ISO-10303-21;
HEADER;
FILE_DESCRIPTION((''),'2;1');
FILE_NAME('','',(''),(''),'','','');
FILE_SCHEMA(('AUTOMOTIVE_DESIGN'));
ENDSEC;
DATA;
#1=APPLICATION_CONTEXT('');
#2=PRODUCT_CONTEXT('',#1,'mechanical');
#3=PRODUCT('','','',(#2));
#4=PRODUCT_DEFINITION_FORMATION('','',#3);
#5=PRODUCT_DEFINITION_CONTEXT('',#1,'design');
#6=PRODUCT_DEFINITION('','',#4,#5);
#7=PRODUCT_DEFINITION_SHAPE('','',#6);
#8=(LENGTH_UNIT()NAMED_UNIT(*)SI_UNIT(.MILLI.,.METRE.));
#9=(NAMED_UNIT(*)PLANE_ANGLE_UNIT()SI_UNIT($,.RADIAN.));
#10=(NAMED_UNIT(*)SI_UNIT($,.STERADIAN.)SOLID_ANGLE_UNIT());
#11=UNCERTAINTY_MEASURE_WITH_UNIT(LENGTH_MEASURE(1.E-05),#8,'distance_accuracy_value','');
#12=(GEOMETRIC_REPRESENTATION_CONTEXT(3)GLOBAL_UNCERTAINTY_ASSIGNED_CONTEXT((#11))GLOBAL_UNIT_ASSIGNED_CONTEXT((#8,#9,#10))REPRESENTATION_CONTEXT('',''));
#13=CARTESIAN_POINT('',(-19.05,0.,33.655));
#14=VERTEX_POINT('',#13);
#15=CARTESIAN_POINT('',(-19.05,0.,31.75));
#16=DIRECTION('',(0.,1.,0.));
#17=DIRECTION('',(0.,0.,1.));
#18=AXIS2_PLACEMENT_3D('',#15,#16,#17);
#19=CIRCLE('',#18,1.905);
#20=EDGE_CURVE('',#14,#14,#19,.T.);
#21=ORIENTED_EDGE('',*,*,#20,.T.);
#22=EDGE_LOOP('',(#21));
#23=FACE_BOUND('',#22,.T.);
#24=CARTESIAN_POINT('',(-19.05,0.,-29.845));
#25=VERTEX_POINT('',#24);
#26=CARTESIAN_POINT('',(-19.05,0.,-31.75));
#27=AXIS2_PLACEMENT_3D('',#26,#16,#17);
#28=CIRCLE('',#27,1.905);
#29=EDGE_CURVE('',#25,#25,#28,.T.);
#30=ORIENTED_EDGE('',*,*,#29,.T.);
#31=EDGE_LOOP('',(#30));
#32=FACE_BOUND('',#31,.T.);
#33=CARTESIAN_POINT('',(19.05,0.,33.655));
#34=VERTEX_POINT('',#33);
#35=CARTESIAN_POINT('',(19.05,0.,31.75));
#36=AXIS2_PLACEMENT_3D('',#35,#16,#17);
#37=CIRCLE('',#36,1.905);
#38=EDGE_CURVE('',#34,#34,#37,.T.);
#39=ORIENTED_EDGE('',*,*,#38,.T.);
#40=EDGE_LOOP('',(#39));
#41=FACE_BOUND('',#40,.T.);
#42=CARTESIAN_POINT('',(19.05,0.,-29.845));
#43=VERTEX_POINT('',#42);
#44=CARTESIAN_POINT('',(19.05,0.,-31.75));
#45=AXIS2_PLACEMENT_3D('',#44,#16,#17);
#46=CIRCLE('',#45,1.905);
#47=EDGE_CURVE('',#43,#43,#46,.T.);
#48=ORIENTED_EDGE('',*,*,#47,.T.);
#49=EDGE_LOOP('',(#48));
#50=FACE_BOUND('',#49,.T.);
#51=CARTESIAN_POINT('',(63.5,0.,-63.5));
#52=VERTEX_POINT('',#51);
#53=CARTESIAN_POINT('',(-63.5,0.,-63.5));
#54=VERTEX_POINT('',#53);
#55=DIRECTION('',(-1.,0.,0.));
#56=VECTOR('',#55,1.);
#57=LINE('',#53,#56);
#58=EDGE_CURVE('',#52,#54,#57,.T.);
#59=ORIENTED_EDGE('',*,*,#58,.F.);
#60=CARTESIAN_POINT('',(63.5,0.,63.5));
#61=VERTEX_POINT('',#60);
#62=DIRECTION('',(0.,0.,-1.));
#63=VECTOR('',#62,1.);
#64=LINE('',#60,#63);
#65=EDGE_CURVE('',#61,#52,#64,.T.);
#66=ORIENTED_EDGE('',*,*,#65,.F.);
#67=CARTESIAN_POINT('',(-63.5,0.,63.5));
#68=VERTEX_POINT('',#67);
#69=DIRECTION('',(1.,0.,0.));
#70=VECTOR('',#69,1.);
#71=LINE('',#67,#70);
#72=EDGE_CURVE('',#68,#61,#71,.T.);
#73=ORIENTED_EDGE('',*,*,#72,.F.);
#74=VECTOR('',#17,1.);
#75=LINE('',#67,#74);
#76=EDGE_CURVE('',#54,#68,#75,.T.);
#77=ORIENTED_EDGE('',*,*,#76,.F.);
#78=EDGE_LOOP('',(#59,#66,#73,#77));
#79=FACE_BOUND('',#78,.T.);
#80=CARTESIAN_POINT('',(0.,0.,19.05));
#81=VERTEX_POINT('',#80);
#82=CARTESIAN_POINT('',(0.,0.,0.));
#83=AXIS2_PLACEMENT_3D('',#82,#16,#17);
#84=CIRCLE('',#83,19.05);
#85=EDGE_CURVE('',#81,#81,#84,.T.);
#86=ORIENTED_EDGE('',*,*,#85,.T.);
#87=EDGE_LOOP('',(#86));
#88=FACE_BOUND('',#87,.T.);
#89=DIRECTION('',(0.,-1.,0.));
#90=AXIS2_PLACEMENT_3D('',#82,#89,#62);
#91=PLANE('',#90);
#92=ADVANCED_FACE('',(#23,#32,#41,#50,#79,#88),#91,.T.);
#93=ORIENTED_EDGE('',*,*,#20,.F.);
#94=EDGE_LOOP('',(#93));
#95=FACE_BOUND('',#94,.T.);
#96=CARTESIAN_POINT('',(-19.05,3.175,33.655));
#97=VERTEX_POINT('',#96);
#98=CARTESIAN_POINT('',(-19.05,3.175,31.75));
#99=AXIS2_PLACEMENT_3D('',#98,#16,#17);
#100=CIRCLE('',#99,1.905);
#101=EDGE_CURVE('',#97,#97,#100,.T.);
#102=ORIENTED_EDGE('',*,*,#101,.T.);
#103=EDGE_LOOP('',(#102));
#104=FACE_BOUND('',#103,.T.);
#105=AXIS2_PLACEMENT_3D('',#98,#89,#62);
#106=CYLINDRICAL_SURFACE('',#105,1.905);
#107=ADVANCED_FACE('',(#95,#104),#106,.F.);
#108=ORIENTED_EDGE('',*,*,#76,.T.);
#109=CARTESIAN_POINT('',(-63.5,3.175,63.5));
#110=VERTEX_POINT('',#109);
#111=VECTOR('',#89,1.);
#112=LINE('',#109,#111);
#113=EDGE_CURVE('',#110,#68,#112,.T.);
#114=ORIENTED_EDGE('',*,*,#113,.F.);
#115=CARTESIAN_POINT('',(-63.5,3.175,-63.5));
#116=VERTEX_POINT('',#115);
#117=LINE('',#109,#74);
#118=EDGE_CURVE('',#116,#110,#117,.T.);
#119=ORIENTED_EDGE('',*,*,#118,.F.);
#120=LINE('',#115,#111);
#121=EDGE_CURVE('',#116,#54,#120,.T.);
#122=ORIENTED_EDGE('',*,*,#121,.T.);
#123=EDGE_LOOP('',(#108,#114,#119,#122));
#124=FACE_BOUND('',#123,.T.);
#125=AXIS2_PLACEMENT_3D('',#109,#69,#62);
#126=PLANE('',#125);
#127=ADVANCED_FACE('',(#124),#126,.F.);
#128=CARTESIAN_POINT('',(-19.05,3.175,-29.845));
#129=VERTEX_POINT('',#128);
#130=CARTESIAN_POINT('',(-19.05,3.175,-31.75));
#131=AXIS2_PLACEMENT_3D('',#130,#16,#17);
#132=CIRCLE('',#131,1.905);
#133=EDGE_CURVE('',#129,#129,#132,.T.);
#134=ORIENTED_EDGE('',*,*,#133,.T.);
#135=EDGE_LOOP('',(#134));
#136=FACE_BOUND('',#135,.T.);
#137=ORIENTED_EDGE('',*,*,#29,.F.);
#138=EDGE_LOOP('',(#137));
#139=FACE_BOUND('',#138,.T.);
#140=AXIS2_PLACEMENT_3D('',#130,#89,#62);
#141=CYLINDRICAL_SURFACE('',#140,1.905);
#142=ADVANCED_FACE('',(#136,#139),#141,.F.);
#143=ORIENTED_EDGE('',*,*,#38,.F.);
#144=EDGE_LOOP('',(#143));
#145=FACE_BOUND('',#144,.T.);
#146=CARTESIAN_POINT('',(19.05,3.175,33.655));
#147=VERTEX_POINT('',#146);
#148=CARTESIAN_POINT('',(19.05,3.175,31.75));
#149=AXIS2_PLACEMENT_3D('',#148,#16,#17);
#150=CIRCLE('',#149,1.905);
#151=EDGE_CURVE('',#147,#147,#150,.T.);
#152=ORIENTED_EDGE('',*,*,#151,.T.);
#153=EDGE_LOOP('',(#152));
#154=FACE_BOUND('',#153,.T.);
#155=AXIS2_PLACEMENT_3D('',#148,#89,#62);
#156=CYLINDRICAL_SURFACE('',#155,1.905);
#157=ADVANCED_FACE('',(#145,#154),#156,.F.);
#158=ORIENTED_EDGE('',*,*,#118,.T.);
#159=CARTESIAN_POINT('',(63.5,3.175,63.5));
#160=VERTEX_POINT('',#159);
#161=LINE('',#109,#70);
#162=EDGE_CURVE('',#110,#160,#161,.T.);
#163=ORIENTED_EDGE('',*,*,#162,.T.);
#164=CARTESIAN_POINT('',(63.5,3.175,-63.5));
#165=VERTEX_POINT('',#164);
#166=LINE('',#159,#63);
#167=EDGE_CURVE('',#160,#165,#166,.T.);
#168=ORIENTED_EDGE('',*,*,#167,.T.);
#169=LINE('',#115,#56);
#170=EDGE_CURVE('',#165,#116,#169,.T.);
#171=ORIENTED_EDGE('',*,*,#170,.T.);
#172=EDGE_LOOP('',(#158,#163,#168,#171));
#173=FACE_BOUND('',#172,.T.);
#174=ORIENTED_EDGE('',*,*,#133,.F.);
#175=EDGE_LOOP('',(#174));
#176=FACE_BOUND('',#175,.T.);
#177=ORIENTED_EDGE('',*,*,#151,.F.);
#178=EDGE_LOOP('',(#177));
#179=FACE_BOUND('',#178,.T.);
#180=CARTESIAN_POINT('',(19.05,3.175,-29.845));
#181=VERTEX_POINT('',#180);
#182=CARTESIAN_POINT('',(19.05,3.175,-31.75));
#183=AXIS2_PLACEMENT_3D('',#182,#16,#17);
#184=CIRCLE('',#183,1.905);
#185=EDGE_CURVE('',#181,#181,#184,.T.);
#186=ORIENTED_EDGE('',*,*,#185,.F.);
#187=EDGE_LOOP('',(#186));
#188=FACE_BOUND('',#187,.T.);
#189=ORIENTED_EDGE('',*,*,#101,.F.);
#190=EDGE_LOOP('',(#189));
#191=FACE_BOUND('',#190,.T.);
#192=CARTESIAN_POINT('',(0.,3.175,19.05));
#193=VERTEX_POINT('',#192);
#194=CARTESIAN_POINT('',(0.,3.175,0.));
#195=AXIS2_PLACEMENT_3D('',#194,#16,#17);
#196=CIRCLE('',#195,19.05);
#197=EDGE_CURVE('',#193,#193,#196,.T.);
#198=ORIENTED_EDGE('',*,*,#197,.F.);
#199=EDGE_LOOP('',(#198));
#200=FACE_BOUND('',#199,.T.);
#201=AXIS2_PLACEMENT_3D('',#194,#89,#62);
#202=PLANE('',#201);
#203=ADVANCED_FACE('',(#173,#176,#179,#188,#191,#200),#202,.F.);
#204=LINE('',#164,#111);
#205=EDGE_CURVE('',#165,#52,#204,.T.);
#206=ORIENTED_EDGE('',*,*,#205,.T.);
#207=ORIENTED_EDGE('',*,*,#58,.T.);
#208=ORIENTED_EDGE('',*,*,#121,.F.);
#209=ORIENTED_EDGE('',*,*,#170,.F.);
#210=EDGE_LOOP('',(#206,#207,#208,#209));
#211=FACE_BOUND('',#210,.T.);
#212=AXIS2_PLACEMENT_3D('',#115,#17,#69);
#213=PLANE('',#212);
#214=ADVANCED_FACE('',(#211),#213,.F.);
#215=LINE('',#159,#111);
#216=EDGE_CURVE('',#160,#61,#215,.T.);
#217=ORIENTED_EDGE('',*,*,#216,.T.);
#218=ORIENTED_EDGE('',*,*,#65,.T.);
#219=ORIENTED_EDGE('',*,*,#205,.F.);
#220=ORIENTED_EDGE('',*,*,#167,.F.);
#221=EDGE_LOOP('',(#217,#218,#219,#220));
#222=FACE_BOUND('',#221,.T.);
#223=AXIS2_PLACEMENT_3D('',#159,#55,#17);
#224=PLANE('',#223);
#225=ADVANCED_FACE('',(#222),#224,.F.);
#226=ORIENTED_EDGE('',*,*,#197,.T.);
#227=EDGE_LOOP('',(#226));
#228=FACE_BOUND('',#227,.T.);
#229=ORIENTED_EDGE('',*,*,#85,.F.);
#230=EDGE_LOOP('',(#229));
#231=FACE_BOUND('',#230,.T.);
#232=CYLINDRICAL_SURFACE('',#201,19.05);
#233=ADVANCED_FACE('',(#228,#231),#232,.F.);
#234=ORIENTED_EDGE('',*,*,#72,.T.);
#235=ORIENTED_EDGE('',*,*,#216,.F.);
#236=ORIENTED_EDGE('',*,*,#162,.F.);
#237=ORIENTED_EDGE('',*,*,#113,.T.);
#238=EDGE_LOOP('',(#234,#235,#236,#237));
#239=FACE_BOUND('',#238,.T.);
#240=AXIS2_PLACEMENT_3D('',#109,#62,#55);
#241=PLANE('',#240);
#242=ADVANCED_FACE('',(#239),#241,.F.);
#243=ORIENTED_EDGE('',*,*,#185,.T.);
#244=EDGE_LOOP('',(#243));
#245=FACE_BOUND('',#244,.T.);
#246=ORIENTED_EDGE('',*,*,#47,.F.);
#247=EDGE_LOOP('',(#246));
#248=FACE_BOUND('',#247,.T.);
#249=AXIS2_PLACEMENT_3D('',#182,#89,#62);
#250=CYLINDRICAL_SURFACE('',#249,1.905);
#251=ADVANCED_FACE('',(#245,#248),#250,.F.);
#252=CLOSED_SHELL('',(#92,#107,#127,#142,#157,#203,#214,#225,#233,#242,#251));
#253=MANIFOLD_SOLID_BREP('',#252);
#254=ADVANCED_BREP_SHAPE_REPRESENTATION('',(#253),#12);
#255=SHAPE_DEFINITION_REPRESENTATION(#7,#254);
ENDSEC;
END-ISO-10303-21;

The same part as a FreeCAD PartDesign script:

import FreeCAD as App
import Part
import Sketcher
Q = App.Units.Quantity

doc = App.newDocument("Part")
body = doc.addObject("PartDesign::Body", "Body")

# Sketch on XZ plane
sketch1 = body.newObject("Sketcher::SketchObject", "Sketch")
sketch1.AttachmentSupport = (doc.getObject("XZ_Plane"), [""])
sketch1.MapMode = "FlatFace"
sketch1.addGeometry(Part.LineSegment(App.Vector(-64, -64, 0), App.Vector(-64, 64, 0)), False)
sketch1.addGeometry(Part.LineSegment(App.Vector(-64, 64, 0), App.Vector(64, 64, 0)), False)
sketch1.addGeometry(Part.LineSegment(App.Vector(64, 64, 0), App.Vector(64, -64, 0)), False)
sketch1.addGeometry(Part.LineSegment(App.Vector(64, -64, 0), App.Vector(-64, -64, 0)), False)
sketch1.addConstraint(Sketcher.Constraint("Coincident", 0, 2, 1, 1))
sketch1.addConstraint(Sketcher.Constraint("Coincident", 1, 2, 2, 1))
sketch1.addConstraint(Sketcher.Constraint("Coincident", 2, 2, 3, 1))
sketch1.addConstraint(Sketcher.Constraint("Coincident", 3, 2, 0, 1))
sketch1.addConstraint(Sketcher.Constraint("Vertical", 0))
sketch1.addConstraint(Sketcher.Constraint("Horizontal", 1))
sketch1.addConstraint(Sketcher.Constraint("Vertical", 2))
sketch1.addConstraint(Sketcher.Constraint("Horizontal", 3))
sketch1.addConstraint(Sketcher.Constraint("Symmetric", 0, 2, 2, 2, -1, 1))
sketch1.addConstraint(Sketcher.Constraint("Equal", 3, 0))
sketch1.addConstraint(Sketcher.Constraint("DistanceX", 1, 1, 1, 2, Q("5 in")))
pad1 = body.newObject("PartDesign::Pad", "Pad")
pad1.Profile = sketch1
pad1.Length = Q("0.125 in")
pad1.Reversed = True

# Sketch on XZ plane
sketch2 = body.newObject("Sketcher::SketchObject", "Sketch001")
sketch2.AttachmentSupport = (doc.getObject("XZ_Plane"), [""])
sketch2.MapMode = "FlatFace"
sketch2.addGeometry(Part.Circle(App.Vector(0, 0, 0), App.Vector(0, 0, 1), 19.1), False)
sketch2.addGeometry(Part.Circle(App.Vector(19.1, -31.8, 0), App.Vector(0, 0, 1), 1.9), False)
sketch2.addGeometry(Part.Circle(App.Vector(-19.1, -31.8, 0), App.Vector(0, 0, 1), 1.9), False)
sketch2.addGeometry(Part.Circle(App.Vector(-19.1, 31.8, 0), App.Vector(0, 0, 1), 1.9), False)
sketch2.addGeometry(Part.Circle(App.Vector(19.1, 31.8, 0), App.Vector(0, 0, 1), 1.9), False)
sketch2.addConstraint(Sketcher.Constraint("Coincident", 0, 3, -1, 1))
sketch2.addConstraint(Sketcher.Constraint("Equal", 1, 2))
sketch2.addConstraint(Sketcher.Constraint("Equal", 2, 3))
sketch2.addConstraint(Sketcher.Constraint("Equal", 3, 4))
sketch2.addConstraint(Sketcher.Constraint("Symmetric", 1, 3, 3, 3, -1, 1))
sketch2.addConstraint(Sketcher.Constraint("Symmetric", 2, 3, 4, 3, -1, 1))
sketch2.addConstraint(Sketcher.Constraint("Symmetric", 1, 3, 2, 3, -2))
sketch2.addConstraint(Sketcher.Constraint("Diameter", 0, Q("1.5 in")))
sketch2.addConstraint(Sketcher.Constraint("Diameter", 1, Q("0.15 in")))
sketch2.addConstraint(Sketcher.Constraint("DistanceX", 2, 3, 1, 3, Q("1.5 in")))
sketch2.addConstraint(Sketcher.Constraint("DistanceY", 2, 3, 3, 3, Q("2.5 in")))
pocket1 = body.newObject("PartDesign::Pocket", "Pocket")
pocket1.Profile = sketch2
pocket1.Type = "ThroughAll"

doc.recompute()
